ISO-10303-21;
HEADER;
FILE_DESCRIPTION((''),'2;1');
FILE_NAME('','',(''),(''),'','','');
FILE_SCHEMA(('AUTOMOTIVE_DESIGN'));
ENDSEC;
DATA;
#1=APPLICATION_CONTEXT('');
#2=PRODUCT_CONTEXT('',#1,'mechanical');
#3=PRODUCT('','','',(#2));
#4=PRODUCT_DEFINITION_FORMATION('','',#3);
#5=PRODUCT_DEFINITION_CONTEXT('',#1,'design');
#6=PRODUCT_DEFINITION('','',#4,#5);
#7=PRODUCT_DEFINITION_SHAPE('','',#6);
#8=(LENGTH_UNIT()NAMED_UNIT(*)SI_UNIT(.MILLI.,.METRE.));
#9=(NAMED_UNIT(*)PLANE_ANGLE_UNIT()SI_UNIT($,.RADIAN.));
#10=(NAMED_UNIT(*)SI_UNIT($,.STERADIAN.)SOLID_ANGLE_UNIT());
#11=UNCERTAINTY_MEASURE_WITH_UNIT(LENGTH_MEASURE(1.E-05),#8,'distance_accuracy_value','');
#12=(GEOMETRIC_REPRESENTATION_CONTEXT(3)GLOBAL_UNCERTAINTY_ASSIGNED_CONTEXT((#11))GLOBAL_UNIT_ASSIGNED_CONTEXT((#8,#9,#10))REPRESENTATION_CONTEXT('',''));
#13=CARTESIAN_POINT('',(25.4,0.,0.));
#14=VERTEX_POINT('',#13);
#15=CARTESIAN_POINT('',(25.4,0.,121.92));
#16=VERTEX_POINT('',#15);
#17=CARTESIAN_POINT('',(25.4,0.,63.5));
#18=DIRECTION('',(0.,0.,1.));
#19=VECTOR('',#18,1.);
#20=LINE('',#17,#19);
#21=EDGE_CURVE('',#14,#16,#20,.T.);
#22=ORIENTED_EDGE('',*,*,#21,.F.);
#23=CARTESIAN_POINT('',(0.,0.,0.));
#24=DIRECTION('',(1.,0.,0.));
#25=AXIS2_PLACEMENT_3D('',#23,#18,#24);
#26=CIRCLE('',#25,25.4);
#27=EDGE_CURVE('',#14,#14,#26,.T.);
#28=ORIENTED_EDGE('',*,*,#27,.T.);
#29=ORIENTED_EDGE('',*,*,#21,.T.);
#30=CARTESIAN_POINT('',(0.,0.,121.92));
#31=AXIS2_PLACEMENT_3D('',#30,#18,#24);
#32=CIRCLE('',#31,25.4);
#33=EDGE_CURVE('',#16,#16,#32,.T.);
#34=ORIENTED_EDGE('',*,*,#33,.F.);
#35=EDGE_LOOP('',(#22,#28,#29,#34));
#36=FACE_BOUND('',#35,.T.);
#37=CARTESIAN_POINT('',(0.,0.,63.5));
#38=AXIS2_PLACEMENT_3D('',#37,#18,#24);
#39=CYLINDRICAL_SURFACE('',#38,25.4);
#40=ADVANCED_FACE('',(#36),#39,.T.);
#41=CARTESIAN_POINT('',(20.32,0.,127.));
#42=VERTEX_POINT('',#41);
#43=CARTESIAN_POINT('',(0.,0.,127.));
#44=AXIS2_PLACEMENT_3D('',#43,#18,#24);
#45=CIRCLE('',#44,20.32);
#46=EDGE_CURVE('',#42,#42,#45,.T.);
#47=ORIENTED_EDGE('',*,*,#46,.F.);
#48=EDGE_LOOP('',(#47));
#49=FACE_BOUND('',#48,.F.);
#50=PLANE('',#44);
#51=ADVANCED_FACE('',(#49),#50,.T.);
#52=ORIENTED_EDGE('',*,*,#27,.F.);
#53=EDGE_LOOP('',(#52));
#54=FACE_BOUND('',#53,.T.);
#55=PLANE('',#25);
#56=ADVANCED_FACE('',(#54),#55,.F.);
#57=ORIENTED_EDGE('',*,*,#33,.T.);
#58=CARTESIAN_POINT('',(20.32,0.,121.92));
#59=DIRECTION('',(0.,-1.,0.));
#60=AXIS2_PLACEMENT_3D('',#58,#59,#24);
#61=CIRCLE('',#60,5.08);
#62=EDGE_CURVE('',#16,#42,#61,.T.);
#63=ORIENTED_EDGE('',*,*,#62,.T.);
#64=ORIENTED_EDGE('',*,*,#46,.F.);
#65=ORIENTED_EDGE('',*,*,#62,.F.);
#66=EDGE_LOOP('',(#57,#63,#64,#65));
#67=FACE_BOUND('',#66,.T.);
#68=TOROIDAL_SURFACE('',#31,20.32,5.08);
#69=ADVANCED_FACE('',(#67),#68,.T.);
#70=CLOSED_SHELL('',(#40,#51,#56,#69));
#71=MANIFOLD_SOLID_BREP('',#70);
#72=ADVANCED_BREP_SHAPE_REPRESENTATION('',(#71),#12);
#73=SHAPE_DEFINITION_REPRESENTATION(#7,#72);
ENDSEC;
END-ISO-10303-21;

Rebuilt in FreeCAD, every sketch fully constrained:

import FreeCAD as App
import Part
import Sketcher
Q = App.Units.Quantity


def edges_at(feature, points):
    """Names of the edges that pass closest to the given points."""
    edges = feature.Shape.Edges
    near = lambda p: min(range(len(edges)), key=lambda i: edges[i].distToShape(Part.Vertex(*p))[0])
    return sorted({f"Edge{near(p) + 1}" for p in points})

doc = App.newDocument("Part")
params = doc.addObject("Spreadsheet::Sheet", "Params")
for row, (alias, value) in enumerate([
    ("sketch1_width", "1 in"),
    ("sketch1_height", "5 in"),
    ("revolution_angle", "360 deg"),
    ("fillet_radius", "0.2 in"),
], start=1):
    params.set(f"A{row}", alias)
    params.set(f"B{row}", "=" + value)
    params.setAlias(f"B{row}", alias)

body = doc.addObject("PartDesign::Body", "Body")

# Sketch on XZ plane
sketch1 = body.newObject("Sketcher::SketchObject", "Sketch")
sketch1.AttachmentSupport = (doc.getObject("XZ_Plane"), [""])
sketch1.MapMode = "FlatFace"
sketch1.addGeometry([
    Part.LineSegment(App.Vector(0, 127, 0), App.Vector(0, 0, 0)),
    Part.LineSegment(App.Vector(0, 0, 0), App.Vector(25, 0, 0)),
    Part.LineSegment(App.Vector(25, 0, 0), App.Vector(25, 127, 0)),
    Part.LineSegment(App.Vector(25, 127, 0), App.Vector(0, 127, 0)),
], False)
sketch1.addConstraint([
    Sketcher.Constraint("Coincident", 0, 2, 1, 1),
    Sketcher.Constraint("Coincident", 1, 2, 2, 1),
    Sketcher.Constraint("Coincident", 2, 2, 3, 1),
    Sketcher.Constraint("Coincident", 3, 2, 0, 1),
    Sketcher.Constraint("Vertical", 0),
    Sketcher.Constraint("Horizontal", 1),
    Sketcher.Constraint("Vertical", 2),
    Sketcher.Constraint("Horizontal", 3),
    Sketcher.Constraint("Coincident", 0, 2, -1, 1),
    Sketcher.Constraint("DistanceX", 1, 1, 1, 2, Q("1 in")),
    Sketcher.Constraint("DistanceY", 0, 2, 0, 1, Q("5 in")),
])
sketch1.setExpression("Constraints[9]", "Params.sketch1_width")
sketch1.setExpression("Constraints[10]", "Params.sketch1_height")
revolution = body.newObject("PartDesign::Revolution", "Revolution")
revolution.Profile = sketch1
revolution.ReferenceAxis = (sketch1, ["V_Axis"])
revolution.setExpression("Angle", "Params.revolution_angle")
doc.recompute()

fillet = body.newObject("PartDesign::Fillet", "Fillet")
fillet.Base = (revolution, edges_at(revolution, [(-25.4, 0, 127)]))
fillet.setExpression("Radius", "Params.fillet_radius")

doc.recompute()
